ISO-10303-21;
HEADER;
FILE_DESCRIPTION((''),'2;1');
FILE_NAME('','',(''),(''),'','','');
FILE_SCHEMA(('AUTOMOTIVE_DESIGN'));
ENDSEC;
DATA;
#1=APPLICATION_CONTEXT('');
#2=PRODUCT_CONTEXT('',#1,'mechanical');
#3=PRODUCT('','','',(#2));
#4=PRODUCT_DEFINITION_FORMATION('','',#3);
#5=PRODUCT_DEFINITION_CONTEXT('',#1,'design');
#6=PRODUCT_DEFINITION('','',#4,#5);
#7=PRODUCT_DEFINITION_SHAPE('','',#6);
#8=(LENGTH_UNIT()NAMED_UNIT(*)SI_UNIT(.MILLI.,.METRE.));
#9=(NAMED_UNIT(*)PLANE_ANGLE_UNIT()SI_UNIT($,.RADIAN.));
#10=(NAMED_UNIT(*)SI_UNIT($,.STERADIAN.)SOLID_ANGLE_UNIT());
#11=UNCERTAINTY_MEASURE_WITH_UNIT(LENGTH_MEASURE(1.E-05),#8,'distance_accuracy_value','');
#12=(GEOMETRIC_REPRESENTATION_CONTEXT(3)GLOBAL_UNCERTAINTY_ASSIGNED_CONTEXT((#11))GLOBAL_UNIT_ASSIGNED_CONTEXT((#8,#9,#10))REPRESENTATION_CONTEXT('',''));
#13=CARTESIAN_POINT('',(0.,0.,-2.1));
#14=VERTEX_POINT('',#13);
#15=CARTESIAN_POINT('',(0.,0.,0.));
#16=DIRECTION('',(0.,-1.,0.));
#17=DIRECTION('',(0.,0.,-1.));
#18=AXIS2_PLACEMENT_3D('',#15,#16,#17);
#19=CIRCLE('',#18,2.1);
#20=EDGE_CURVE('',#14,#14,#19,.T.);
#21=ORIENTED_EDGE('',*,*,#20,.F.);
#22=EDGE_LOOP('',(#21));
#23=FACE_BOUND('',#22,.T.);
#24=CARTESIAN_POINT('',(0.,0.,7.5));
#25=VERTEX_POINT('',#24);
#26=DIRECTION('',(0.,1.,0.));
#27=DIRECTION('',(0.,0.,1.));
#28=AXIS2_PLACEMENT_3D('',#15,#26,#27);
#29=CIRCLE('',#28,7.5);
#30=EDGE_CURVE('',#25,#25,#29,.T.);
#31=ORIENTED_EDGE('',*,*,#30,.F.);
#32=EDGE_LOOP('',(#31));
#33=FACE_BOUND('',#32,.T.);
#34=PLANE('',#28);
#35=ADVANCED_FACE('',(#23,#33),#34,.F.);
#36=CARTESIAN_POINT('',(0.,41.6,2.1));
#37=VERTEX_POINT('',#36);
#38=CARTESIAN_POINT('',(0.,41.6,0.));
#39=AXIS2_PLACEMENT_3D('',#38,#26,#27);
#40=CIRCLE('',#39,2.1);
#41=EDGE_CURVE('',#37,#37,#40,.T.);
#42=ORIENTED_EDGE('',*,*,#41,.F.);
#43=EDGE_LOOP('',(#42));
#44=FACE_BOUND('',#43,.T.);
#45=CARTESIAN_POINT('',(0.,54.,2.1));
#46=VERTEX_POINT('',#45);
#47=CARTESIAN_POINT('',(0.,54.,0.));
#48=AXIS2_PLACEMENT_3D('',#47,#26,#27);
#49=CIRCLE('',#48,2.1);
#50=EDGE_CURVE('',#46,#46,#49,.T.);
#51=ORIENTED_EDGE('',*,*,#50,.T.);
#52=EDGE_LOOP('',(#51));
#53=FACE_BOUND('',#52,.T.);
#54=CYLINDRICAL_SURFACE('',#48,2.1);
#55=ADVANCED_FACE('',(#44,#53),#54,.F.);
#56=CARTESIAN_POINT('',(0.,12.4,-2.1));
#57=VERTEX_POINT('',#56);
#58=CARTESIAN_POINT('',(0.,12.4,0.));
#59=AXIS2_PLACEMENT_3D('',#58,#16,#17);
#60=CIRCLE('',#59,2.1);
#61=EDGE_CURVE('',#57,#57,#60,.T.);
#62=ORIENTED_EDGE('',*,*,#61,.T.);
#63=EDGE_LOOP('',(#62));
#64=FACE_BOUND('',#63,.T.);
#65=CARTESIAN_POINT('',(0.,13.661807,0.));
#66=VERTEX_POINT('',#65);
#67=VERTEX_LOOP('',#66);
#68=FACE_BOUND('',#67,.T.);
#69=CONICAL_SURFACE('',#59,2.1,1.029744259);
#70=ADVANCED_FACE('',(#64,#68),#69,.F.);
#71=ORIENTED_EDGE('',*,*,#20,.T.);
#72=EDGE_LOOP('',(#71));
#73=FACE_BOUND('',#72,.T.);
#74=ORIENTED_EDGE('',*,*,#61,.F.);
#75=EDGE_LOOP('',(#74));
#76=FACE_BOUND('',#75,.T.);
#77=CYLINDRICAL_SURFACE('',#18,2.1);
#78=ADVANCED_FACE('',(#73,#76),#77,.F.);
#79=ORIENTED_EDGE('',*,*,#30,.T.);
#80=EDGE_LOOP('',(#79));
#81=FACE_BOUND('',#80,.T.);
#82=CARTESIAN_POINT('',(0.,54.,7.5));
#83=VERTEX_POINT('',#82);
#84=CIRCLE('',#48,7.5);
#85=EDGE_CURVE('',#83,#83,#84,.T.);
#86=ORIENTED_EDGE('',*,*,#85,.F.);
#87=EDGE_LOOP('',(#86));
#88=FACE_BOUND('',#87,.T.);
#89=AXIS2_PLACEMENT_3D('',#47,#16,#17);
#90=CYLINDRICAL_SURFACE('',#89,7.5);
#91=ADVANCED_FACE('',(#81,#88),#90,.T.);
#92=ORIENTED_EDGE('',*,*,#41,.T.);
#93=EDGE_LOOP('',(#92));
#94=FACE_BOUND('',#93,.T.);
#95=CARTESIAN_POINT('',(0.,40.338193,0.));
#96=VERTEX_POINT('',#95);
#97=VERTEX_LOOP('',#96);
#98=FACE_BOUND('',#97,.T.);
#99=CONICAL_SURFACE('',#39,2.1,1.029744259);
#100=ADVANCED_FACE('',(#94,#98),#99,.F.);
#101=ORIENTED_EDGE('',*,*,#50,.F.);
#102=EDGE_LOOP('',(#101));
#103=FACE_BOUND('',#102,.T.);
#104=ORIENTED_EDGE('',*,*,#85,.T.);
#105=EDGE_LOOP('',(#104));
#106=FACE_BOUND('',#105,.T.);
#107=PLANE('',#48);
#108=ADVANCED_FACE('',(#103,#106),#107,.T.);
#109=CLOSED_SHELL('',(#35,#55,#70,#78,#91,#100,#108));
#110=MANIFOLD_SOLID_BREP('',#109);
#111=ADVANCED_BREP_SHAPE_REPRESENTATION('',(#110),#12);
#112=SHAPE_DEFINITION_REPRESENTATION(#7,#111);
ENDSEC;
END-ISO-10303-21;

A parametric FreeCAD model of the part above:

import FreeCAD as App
import Part
import Sketcher

V = App.Vector
Q = App.Units.Quantity


def add_polygon(sketch, points):
    """Adds a closed chain of lines whose ends are joined by coincident constraints."""
    first, n = sketch.GeometryCount, len(points)
    for a, b in zip(points, points[1:] + points[:1]):
        sketch.addGeometry(Part.LineSegment(App.Vector(*a, 0), App.Vector(*b, 0)), False)
    for i in range(n):
        sketch.addConstraint(Sketcher.Constraint("Coincident", first + i, 2, first + (i + 1) % n, 1))

doc = App.newDocument("Part")
params = doc.addObject("Spreadsheet::Sheet", "Params")
for row, (alias, value) in enumerate([
    ("sketch1_diameter", "15 mm"),
    ("pad1_length", "54 mm"),
    ("sketch2_width", "12.4 mm"),
    ("sketch2_height", "2.1 mm"),
    ("groove_angle", "360 deg"),
], start=1):
    params.set(f"A{row}", alias)
    params.set(f"B{row}", "=" + value)
    params.setAlias(f"B{row}", alias)

body = doc.addObject("PartDesign::Body", "Body")

sketch1 = doc.addObject("Sketcher::SketchObject", "Sketch")
body.addObject(sketch1)
sketch1.AttachmentSupport = (doc.XZ_Plane, [""])
sketch1.MapMode = "FlatFace"
sketch1.addGeometry(Part.Circle(V(0, 0, 0), V(0, 0, 1), 8), False)
sketch1.addConstraint([
    Sketcher.Constraint("Coincident", 0, 3, -1, 1),
    Sketcher.Constraint("Diameter", 0, 15.0),
])
sketch1.setExpression("Constraints[1]", "Params.sketch1_diameter")
pad1 = doc.addObject("PartDesign::Pad", "Pad")
body.addObject(pad1)
pad1.Profile = sketch1
pad1.setExpression("Length", "Params.pad1_length")
pad1.Reversed = True

sketch2 = doc.addObject("Sketcher::SketchObject", "Sketch001")
body.addObject(sketch2)
sketch2.AttachmentSupport = (doc.YZ_Plane, [""])
sketch2.MapMode = "FlatFace"
add_polygon(sketch2, [(40.3, 0), (54, 0), (54, 2.1), (41.6, 2.1)])
sketch2.addConstraint([
    Sketcher.Constraint("Horizontal", 0),
    Sketcher.Constraint("Vertical", 1),
    Sketcher.Constraint("Horizontal", 2),
    Sketcher.Constraint("PointOnObject", 0, 2, -1),
    Sketcher.Constraint("Angle", 3, Q("-121 deg")),
    Sketcher.Constraint("DistanceX", 2, 2, 2, 1, 12.4),
    Sketcher.Constraint("DistanceY", 1, 1, 1, 2, 2.1),
    Sketcher.Constraint("DistanceX", -1, 1, 0, 2, 54.0),
])
sketch2.setExpression("Constraints[9]", "Params.sketch2_width")
sketch2.setExpression("Constraints[10]", "Params.sketch2_height")
groove = doc.addObject("PartDesign::Groove", "Groove")
body.addObject(groove)
groove.Profile = sketch2
groove.ReferenceAxis = (sketch2, ["H_Axis"])
groove.setExpression("Angle", "Params.groove_angle")
doc.recompute()

datumplane = doc.addObject("PartDesign::Plane", "DatumPlane")
body.addObject(datumplane)
datumplane.AttachmentSupport = (doc.XZ_Plane, [""])
datumplane.MapMode = "FlatFace"
datumplane.AttachmentOffset = App.Placement(V(0, 0, -27), App.Rotation())
mirrored = doc.addObject("PartDesign::Mirrored", "Mirrored")
body.addObject(mirrored)
mirrored.Originals = [groove]
mirrored.MirrorPlane = (datumplane, [""])
body.Tip = mirrored

doc.recompute()
